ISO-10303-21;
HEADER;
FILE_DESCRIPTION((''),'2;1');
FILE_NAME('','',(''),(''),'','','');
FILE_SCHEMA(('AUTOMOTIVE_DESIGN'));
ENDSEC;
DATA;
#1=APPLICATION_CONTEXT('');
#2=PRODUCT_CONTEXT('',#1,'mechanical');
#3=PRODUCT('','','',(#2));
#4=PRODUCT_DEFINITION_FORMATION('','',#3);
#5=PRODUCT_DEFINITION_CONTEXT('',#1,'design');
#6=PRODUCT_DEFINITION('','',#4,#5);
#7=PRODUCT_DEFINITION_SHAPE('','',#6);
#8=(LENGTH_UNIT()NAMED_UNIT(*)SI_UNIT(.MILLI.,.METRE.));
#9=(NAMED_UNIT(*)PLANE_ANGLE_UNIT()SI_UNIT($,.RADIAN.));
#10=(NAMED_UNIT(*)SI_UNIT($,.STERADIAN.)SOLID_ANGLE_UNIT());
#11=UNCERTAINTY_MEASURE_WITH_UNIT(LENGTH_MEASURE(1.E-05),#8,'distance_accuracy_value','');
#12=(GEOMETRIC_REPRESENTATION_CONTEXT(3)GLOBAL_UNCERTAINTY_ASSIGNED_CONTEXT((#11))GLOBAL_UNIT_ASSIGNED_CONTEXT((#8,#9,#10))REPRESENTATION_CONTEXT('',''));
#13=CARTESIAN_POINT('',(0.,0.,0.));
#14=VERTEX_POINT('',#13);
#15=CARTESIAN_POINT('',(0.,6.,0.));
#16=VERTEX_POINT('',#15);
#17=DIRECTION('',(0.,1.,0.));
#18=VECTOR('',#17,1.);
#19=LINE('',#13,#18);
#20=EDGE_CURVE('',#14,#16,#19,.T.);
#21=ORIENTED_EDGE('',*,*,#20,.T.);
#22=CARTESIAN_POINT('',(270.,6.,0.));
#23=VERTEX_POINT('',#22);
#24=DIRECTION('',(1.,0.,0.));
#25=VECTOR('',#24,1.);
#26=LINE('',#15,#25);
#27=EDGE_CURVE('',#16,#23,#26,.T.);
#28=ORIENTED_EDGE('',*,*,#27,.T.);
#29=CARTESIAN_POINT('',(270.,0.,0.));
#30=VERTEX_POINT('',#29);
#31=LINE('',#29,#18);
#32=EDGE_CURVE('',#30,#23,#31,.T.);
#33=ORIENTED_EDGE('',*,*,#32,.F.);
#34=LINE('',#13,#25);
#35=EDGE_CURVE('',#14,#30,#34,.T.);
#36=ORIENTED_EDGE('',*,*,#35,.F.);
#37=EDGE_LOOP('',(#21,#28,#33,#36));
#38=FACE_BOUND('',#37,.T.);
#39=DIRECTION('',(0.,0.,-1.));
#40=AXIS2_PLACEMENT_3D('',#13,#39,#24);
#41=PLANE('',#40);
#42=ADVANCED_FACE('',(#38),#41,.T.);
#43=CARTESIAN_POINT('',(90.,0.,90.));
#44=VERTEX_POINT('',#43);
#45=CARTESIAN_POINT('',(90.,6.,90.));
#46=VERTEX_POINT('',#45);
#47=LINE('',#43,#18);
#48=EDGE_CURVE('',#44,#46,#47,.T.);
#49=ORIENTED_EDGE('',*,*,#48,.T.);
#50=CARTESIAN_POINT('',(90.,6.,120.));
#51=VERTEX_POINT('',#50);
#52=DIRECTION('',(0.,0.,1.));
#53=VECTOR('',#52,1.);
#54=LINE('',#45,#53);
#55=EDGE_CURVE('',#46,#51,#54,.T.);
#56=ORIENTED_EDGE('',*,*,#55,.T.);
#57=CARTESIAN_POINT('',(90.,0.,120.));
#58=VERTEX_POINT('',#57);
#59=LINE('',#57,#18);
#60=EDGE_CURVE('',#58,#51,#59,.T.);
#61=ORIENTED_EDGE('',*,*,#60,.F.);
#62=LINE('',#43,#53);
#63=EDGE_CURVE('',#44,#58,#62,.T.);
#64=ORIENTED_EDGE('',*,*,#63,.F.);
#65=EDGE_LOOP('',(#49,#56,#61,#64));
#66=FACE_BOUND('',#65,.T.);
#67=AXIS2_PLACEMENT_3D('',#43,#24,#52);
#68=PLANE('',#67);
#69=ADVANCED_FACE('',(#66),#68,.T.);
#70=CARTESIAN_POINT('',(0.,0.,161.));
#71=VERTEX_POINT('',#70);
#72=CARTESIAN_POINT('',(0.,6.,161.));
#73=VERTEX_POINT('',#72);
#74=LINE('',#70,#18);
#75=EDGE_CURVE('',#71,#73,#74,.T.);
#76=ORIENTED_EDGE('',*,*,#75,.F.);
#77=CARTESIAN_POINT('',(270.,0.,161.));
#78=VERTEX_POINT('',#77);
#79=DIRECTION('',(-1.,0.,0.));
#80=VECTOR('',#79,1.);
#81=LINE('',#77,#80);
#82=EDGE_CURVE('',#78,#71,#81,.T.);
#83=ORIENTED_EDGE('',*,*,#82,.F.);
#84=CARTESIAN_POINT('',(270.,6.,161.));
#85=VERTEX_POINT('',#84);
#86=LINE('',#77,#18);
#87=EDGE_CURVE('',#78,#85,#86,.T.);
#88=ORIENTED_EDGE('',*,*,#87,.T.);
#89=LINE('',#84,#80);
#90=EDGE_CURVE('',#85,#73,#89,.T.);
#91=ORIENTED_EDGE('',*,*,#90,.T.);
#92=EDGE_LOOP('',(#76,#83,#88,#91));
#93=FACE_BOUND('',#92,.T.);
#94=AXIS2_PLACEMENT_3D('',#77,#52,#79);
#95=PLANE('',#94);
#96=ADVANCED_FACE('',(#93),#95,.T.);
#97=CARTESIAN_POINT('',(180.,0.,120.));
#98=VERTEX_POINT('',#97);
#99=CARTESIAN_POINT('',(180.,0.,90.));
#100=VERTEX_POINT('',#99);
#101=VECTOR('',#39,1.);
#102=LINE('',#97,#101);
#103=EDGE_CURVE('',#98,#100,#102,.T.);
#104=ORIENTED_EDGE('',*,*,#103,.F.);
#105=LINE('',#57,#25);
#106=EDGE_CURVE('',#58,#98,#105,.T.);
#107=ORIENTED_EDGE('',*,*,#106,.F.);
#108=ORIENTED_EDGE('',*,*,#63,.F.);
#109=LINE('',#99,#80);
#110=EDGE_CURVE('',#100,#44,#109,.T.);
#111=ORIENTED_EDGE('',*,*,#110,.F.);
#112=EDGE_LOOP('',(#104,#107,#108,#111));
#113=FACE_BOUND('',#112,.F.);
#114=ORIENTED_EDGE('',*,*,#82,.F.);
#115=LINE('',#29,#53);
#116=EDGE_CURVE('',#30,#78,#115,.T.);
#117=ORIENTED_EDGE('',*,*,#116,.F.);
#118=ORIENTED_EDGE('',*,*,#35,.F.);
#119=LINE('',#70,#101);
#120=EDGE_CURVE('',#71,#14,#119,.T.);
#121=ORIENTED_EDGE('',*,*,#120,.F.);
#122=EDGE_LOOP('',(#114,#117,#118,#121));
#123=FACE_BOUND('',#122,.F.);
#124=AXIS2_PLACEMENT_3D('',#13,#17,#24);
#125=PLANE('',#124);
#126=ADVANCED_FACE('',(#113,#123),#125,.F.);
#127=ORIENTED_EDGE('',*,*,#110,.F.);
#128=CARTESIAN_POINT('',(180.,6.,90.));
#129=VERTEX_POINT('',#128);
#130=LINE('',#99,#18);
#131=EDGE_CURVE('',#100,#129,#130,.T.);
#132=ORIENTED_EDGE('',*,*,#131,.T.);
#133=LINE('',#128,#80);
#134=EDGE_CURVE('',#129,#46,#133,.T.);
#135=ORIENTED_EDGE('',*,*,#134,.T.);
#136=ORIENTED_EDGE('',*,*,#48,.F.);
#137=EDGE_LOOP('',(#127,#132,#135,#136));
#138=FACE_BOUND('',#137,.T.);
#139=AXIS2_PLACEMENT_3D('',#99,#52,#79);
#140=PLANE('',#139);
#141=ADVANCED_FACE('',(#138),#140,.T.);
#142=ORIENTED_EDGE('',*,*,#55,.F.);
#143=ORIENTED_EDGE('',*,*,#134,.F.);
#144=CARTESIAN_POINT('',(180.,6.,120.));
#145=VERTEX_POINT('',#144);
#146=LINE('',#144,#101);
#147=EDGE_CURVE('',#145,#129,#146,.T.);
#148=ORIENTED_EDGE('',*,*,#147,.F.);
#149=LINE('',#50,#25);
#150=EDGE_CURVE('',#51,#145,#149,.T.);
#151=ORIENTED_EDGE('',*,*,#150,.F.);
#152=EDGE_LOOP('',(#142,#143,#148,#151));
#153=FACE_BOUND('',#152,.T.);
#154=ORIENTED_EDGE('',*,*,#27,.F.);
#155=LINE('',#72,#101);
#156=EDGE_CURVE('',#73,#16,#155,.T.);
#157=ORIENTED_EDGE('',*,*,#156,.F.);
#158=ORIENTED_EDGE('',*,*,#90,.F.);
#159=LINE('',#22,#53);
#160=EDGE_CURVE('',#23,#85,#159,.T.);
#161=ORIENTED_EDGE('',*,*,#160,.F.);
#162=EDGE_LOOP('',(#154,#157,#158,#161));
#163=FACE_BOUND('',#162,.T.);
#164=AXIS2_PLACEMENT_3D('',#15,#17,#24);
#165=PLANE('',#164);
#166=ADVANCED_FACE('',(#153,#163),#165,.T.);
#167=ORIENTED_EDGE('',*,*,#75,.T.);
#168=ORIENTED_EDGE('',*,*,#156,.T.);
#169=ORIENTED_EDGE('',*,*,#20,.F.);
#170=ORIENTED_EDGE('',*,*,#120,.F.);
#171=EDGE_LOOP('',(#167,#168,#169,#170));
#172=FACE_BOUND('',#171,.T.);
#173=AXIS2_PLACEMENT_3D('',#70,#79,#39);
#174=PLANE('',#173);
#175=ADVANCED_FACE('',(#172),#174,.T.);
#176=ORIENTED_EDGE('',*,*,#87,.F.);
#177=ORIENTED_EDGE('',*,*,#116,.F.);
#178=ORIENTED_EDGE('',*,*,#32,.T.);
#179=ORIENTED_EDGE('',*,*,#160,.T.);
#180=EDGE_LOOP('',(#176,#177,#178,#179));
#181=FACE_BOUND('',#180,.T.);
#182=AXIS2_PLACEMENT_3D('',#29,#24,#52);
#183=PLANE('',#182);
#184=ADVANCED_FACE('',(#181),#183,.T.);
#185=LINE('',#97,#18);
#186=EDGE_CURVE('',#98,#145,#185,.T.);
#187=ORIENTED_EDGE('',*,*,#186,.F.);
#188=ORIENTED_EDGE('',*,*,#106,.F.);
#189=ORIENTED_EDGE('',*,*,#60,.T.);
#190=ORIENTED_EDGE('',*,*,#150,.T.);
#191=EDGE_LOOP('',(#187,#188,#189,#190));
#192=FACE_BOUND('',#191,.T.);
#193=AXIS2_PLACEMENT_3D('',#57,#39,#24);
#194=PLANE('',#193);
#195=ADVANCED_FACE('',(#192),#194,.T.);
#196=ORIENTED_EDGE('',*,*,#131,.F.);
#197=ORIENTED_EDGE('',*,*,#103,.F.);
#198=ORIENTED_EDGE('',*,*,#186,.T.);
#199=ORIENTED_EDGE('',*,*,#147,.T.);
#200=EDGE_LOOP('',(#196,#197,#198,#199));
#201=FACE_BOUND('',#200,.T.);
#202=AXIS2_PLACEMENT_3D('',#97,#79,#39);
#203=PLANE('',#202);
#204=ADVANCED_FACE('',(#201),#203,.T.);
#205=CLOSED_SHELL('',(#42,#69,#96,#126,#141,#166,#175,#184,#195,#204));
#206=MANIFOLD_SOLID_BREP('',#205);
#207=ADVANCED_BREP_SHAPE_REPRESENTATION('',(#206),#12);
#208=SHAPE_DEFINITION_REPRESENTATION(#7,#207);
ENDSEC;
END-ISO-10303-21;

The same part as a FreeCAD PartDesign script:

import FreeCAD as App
import Part
import Sketcher

V = App.Vector
Q = App.Units.Quantity


def add_polygon(sketch, points):
    """Adds a closed chain of lines whose ends are joined by coincident constraints."""
    first, n = sketch.GeometryCount, len(points)
    for a, b in zip(points, points[1:] + points[:1]):
        sketch.addGeometry(Part.LineSegment(App.Vector(*a, 0), App.Vector(*b, 0)), False)
    for i in range(n):
        sketch.addConstraint(Sketcher.Constraint("Coincident", first + i, 2, first + (i + 1) % n, 1))

doc = App.newDocument("Part")
body = doc.addObject("PartDesign::Body", "Body")

# Sketch on XZ plane
sketch1 = doc.addObject("Sketcher::SketchObject", "Sketch")
body.addObject(sketch1)
sketch1.AttachmentSupport = (doc.XZ_Plane, [""])
sketch1.MapMode = "FlatFace"
add_polygon(sketch1, [(270, 0), (0, 0), (0, 161), (270, 161)])  # lines 0-3
sketch1.addConstraint([
    Sketcher.Constraint("Horizontal", 0),
    Sketcher.Constraint("Vertical", 1),
    Sketcher.Constraint("Horizontal", 2),
    Sketcher.Constraint("Vertical", 3),
    Sketcher.Constraint("Coincident", 0, 2, -1, 1),
    Sketcher.Constraint("DistanceX", 0, 2, 0, 1, Q("270 mm")),
    Sketcher.Constraint("DistanceY", 1, 1, 1, 2, Q("161 mm")),
])
pad1 = doc.addObject("PartDesign::Pad", "Pad")
body.addObject(pad1)
pad1.Profile = sketch1
pad1.Length = 6
pad1.Reversed = True

# Sketch on XZ plane
sketch2 = doc.addObject("Sketcher::SketchObject", "Sketch001")
body.addObject(sketch2)
sketch2.AttachmentSupport = (doc.XZ_Plane, [""])
sketch2.MapMode = "FlatFace"
add_polygon(sketch2, [(180, 120), (90, 120), (90, 90), (180, 90)])  # lines 0-3
sketch2.addConstraint([
    Sketcher.Constraint("Horizontal", 0),
    Sketcher.Constraint("Vertical", 1),
    Sketcher.Constraint("Horizontal", 2),
    Sketcher.Constraint("Vertical", 3),
    Sketcher.Constraint("DistanceX", 0, 2, 0, 1, Q("90 mm")),
    Sketcher.Constraint("DistanceY", 1, 2, 1, 1, Q("30 mm")),
    Sketcher.Constraint("DistanceX", -1, 1, 0, 2, Q("90 mm")),
    Sketcher.Constraint("DistanceY", -1, 1, 1, 2, Q("90 mm")),
])
pocket1 = doc.addObject("PartDesign::Pocket", "Pocket")
body.addObject(pocket1)
pocket1.Profile = sketch2
pocket1.Length = 6

doc.recompute()
